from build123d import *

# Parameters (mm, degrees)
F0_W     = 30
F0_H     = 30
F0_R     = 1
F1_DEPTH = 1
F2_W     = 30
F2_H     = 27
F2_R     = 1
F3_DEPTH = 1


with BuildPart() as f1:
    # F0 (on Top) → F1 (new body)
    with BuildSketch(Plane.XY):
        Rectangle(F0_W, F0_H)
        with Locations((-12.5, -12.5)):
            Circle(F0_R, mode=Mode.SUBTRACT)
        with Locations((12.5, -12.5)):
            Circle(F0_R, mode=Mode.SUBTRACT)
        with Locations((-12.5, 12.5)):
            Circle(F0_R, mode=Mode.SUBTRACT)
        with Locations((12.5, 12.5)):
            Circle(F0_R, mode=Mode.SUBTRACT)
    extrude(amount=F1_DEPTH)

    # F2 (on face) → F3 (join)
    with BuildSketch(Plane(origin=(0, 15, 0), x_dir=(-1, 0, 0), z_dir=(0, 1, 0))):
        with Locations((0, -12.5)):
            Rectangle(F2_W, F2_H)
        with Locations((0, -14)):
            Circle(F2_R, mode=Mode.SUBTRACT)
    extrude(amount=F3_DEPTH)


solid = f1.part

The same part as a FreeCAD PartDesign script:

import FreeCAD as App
import Part
import Sketcher
from FreeCAD import Vector
Q = App.Units.Quantity


def add_polygon(sketch, points):
    """Adds a closed chain of lines whose ends are joined by coincident constraints."""
    first, n = sketch.GeometryCount, len(points)
    for a, b in zip(points, points[1:] + points[:1]):
        sketch.addGeometry(Part.LineSegment(App.Vector(*a, 0), App.Vector(*b, 0)), False)
    for i in range(n):
        sketch.addConstraint(Sketcher.Constraint("Coincident", first + i, 2, first + (i + 1) % n, 1))

doc = App.newDocument("Part")
body = doc.addObject("PartDesign::Body", "Body")

sketch1 = body.newObject("Sketcher::SketchObject", "Sketch")
sketch1.AttachmentSupport = (doc.getObject("XY_Plane"), [""])
sketch1.MapMode = "FlatFace"
add_polygon(sketch1, [(-15, 15), (-15, -15), (15, -15), (15, 15)])
sketch1.addGeometry(Part.Circle(Vector(-12.5, -12.5, 0), Vector(0, 0, 1), 1), False)
sketch1.addGeometry(Part.Circle(Vector(12.5, -12.5, 0), Vector(0, 0, 1), 1), False)
sketch1.addGeometry(Part.Circle(Vector(-12.5, 12.5, 0), Vector(0, 0, 1), 1), False)
sketch1.addGeometry(Part.Circle(Vector(12.5, 12.5, 0), Vector(0, 0, 1), 1), False)
sketch1.addConstraint([
    Sketcher.Constraint("Vertical", 0),
    Sketcher.Constraint("Horizontal", 1),
    Sketcher.Constraint("Vertical", 2),
    Sketcher.Constraint("Horizontal", 3),
    Sketcher.Constraint("Equal", 4, 5),
    Sketcher.Constraint("Equal", 5, 6),
    Sketcher.Constraint("Equal", 6, 7),
    Sketcher.Constraint("Symmetric", 5, 3, 6, 3, -1, 1),
    Sketcher.Constraint("Symmetric", 4, 3, 7, 3, -1, 1),
    Sketcher.Constraint("Symmetric", 0, 2, 2, 2, -1, 1),
    Sketcher.Constraint("Symmetric", 4, 3, 5, 3, -2),
    Sketcher.Constraint("Equal", 3, 0),
    Sketcher.Constraint("Diameter", 4, Q("2 mm")),
    Sketcher.Constraint("DistanceX", 1, 1, 1, 2, Q("30 mm")),
    Sketcher.Constraint("DistanceX", 4, 3, 5, 3, Q("25 mm")),
    Sketcher.Constraint("DistanceY", 4, 3, 6, 3, Q("25 mm")),
])
pad1 = body.newObject("PartDesign::Pad", "Pad")
pad1.Profile = sketch1
pad1.Length = 1

sketch2 = body.newObject("Sketcher::SketchObject", "Sketch001")
sketch2.AttachmentSupport = (doc.getObject("XZ_Plane"), [""])
sketch2.MapMode = "FlatFace"
sketch2.AttachmentOffset = App.Placement(Vector(0, 0, -15), App.Rotation())
add_polygon(sketch2, [(15, 1), (15, -26), (-15, -26), (-15, 1)])
sketch2.addGeometry(Part.Circle(Vector(0, -14, 0), Vector(0, 0, 1), 1), False)
sketch2.addConstraint([
    Sketcher.Constraint("Vertical", 0),
    Sketcher.Constraint("Horizontal", 1),
    Sketcher.Constraint("Vertical", 2),
    Sketcher.Constraint("Horizontal", 3),
    Sketcher.Constraint("PointOnObject", 4, 3, -2),
    Sketcher.Constraint("Diameter", 4, Q("2 mm")),
    Sketcher.Constraint("DistanceX", 1, 2, 1, 1, Q("30 mm")),
    Sketcher.Constraint("DistanceY", 0, 2, 0, 1, Q("27 mm")),
    Sketcher.Constraint("DistanceY", 4, 3, -1, 1, Q("14 mm")),
    Sketcher.Constraint("DistanceX", -1, 1, 0, 2, Q("15 mm")),
    Sketcher.Constraint("DistanceY", 0, 2, -1, 1, Q("26 mm")),
])
pad2 = body.newObject("PartDesign::Pad", "Pad001")
pad2.Profile = sketch2
pad2.Length = 1
pad2.Reversed = True

doc.recompute()
